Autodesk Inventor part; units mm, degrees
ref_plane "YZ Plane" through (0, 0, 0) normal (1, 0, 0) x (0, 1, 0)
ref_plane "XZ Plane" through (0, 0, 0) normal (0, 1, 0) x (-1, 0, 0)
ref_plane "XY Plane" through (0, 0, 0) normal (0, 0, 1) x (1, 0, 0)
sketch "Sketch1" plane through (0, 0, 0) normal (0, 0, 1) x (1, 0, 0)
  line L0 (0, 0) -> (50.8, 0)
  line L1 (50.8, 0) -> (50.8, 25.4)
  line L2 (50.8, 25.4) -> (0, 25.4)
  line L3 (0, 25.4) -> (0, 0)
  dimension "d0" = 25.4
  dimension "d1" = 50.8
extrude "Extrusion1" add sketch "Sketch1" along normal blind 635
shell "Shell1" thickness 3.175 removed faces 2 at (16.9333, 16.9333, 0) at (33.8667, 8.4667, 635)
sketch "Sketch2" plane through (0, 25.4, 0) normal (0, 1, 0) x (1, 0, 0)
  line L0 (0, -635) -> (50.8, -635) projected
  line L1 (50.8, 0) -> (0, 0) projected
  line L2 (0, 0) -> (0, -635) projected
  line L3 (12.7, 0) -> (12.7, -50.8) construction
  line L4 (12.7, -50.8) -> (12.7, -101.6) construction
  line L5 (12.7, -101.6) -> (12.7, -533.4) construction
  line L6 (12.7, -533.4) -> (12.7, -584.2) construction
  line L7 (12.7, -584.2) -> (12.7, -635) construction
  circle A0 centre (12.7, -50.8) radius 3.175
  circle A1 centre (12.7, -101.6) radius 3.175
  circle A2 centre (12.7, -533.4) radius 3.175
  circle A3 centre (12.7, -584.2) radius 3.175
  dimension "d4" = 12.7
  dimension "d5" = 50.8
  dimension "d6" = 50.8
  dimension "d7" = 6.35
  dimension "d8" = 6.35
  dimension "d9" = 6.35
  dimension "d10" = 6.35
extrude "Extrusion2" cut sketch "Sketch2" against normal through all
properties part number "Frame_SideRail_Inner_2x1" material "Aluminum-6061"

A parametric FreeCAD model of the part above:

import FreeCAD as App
import Part
import Sketcher

V = App.Vector
Q = App.Units.Quantity


def faces_at(feature, points):
    """Names of the faces that lie closest to the given points."""
    faces = feature.Shape.Faces
    near = lambda p: min(range(len(faces)), key=lambda i: faces[i].distToShape(Part.Vertex(*p))[0])
    return sorted({f"Face{near(p) + 1}" for p in points})

doc = App.newDocument("Part")
body = doc.addObject("PartDesign::Body", "Body")

sketch1 = body.newObject("Sketcher::SketchObject", "Sketch")
sketch1.AttachmentSupport = (doc.getObject("XY_Plane"), [""])
sketch1.MapMode = "FlatFace"
sketch1.addGeometry(Part.LineSegment(V(0, 25.4, 0), V(0, 0, 0)), False)
sketch1.addGeometry(Part.LineSegment(V(0, 0, 0), V(50.8, 0, 0)), False)
sketch1.addGeometry(Part.LineSegment(V(50.8, 0, 0), V(50.8, 25.4, 0)), False)
sketch1.addGeometry(Part.LineSegment(V(50.8, 25.4, 0), V(0, 25.4, 0)), False)
sketch1.addConstraint(Sketcher.Constraint("Coincident", 0, 2, 1, 1))
sketch1.addConstraint(Sketcher.Constraint("Coincident", 1, 2, 2, 1))
sketch1.addConstraint(Sketcher.Constraint("Coincident", 2, 2, 3, 1))
sketch1.addConstraint(Sketcher.Constraint("Coincident", 3, 2, 0, 1))
sketch1.addConstraint(Sketcher.Constraint("Vertical", 0))
sketch1.addConstraint(Sketcher.Constraint("Horizontal", 1))
sketch1.addConstraint(Sketcher.Constraint("Vertical", 2))
sketch1.addConstraint(Sketcher.Constraint("Horizontal", 3))
sketch1.addConstraint(Sketcher.Constraint("Coincident", 0, 2, -1, 1))
sketch1.addConstraint(Sketcher.Constraint("DistanceX", 1, 1, 1, 2, Q("2 in")))
sketch1.addConstraint(Sketcher.Constraint("DistanceY", 0, 2, 0, 1, Q("1 in")))
pad1 = body.newObject("PartDesign::Pad", "Pad")
pad1.Profile = sketch1
pad1.Length = Q("25 in")
doc.recompute()

thickness = body.newObject("PartDesign::Thickness", "Thickness")
thickness.Base = (pad1, faces_at(pad1, [(16.933, 16.933, 0), (33.867, 8.467, 635)]))
thickness.Value = Q("0.125 in")
thickness.Reversed = True
thickness.Join = "Intersection"

sketch2 = body.newObject("Sketcher::SketchObject", "Sketch001")
sketch2.AttachmentSupport = (doc.getObject("XZ_Plane"), [""])
sketch2.MapMode = "FlatFace"
sketch2.AttachmentOffset = App.Placement(V(0, 0, -1 * 25.4), App.Rotation())
sketch2.addGeometry(Part.Circle(V(12.7, 50.8, 0), V(0, 0, 1), 3.175), False)
sketch2.addGeometry(Part.Circle(V(12.7, 101.6, 0), V(0, 0, 1), 3.175), False)
sketch2.addGeometry(Part.Circle(V(12.7, 533.4, 0), V(0, 0, 1), 3.175), False)
sketch2.addGeometry(Part.Circle(V(12.7, 584.2, 0), V(0, 0, 1), 3.175), False)
sketch2.addConstraint(Sketcher.Constraint("Equal", 0, 1))
sketch2.addConstraint(Sketcher.Constraint("Equal", 1, 2))
sketch2.addConstraint(Sketcher.Constraint("Equal", 2, 3))
sketch2.addConstraint(Sketcher.Constraint("Vertical", 0, 3, 1, 3))
sketch2.addConstraint(Sketcher.Constraint("Vertical", 1, 3, 2, 3))
sketch2.addConstraint(Sketcher.Constraint("Vertical", 2, 3, 3, 3))
sketch2.addConstraint(Sketcher.Constraint("Diameter", 0, Q("0.25 in")))
sketch2.addConstraint(Sketcher.Constraint("DistanceY", -1, 1, 0, 3, Q("2 in")))
sketch2.addConstraint(Sketcher.Constraint("DistanceY", 0, 3, 1, 3, Q("2 in")))
sketch2.addConstraint(Sketcher.Constraint("DistanceY", 2, 3, 3, 3, Q("2 in")))
sketch2.addConstraint(Sketcher.Constraint("DistanceX", -1, 1, 0, 3, Q("0.5 in")))
sketch2.addConstraint(Sketcher.Constraint("DistanceY", -1, 1, 2, 3, Q("21 in")))
pocket1 = body.newObject("PartDesign::Pocket", "Pocket")
pocket1.Profile = sketch2
pocket1.Type = "ThroughAll"
pocket1.Reversed = True

doc.recompute()
